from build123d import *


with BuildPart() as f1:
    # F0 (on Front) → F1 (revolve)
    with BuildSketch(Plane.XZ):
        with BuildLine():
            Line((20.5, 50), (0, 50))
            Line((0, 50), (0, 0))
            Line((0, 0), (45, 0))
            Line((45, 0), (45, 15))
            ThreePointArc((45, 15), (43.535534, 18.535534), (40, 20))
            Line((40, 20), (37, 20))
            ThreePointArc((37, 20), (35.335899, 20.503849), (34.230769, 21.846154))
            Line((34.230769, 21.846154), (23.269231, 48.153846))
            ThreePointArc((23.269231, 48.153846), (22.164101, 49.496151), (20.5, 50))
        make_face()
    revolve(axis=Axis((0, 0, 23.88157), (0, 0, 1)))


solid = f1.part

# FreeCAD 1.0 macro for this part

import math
import FreeCAD as App
import Part
import Sketcher

V = App.Vector
Q = App.Units.Quantity

doc = App.newDocument("Part")
body = doc.addObject("PartDesign::Body", "Body")

sketch1 = body.newObject("Sketcher::SketchObject", "Sketch")
sketch1.AttachmentSupport = (doc.getObject("XZ_Plane"), [""])
sketch1.MapMode = "FlatFace"
sketch1.addGeometry([
    Part.LineSegment(V(20.5, 50, 0), V(0, 50, 0)),
    Part.LineSegment(V(0, 50, 0), V(0, 0, 0)),
    Part.LineSegment(V(0, 0, 0), V(45, 0, 0)),
    Part.LineSegment(V(45, 0, 0), V(45, 15, 0)),
    Part.ArcOfCircle(Part.Circle(V(40, 15, 0), V(0, 0, 1), 5), math.radians(-0.000004), math.radians(90.000004)),
    Part.LineSegment(V(40, 20, 0), V(37, 20, 0)),
    Part.ArcOfCircle(Part.Circle(V(36.999999, 22.999999, 0), V(0, 0, 1), 2.999999), math.radians(-157.380153), math.radians(-89.999982)),
    Part.LineSegment(V(34.230769, 21.846154, 0), V(23.269231, 48.153846, 0)),
    Part.ArcOfCircle(Part.Circle(V(20.500001, 47.000001, 0), V(0, 0, 1), 2.999999), math.radians(22.619847), math.radians(90.000018)),
], False)
sketch1.addConstraint([
    Sketcher.Constraint("Coincident", 0, 2, 1, 1),
    Sketcher.Constraint("Coincident", 1, 2, 2, 1),
    Sketcher.Constraint("Coincident", 2, 2, 3, 1),
    Sketcher.Constraint("Tangent", 3, 2, 4, 1),
    Sketcher.Constraint("Tangent", 4, 2, 5, 1),
    Sketcher.Constraint("Tangent", 5, 2, 6, 2),
    Sketcher.Constraint("Tangent", 6, 1, 7, 1),
    Sketcher.Constraint("Tangent", 7, 2, 8, 1),
    Sketcher.Constraint("Tangent", 8, 2, 0, 1),
    Sketcher.Constraint("Horizontal", 0),
    Sketcher.Constraint("Vertical", 1),
    Sketcher.Constraint("Horizontal", 2),
    Sketcher.Constraint("Vertical", 3),
    Sketcher.Constraint("Horizontal", 5),
    Sketcher.Constraint("Coincident", 1, 2, -1, 1),
    Sketcher.Constraint("Equal", 6, 8),
    Sketcher.Constraint("Radius", 4, Q("5 mm")),
    Sketcher.Constraint("Radius", 6, Q("2.999999 mm")),
    Sketcher.Constraint("DistanceX", 2, 1, 2, 2, Q("45 mm")),
    Sketcher.Constraint("DistanceX", 5, 2, 5, 1, Q("3 mm")),
    Sketcher.Constraint("DistanceY", 1, 2, 1, 1, Q("50 mm")),
    Sketcher.Constraint("DistanceY", 3, 1, 3, 2, Q("15 mm")),
    Sketcher.Constraint("DistanceX", 0, 2, 0, 1, Q("20.5 mm")),
])
revolution = body.newObject("PartDesign::Revolution", "Revolution")
revolution.Profile = sketch1
revolution.ReferenceAxis = (sketch1, ["V_Axis"])
revolution.Angle = 360

doc.recompute()
